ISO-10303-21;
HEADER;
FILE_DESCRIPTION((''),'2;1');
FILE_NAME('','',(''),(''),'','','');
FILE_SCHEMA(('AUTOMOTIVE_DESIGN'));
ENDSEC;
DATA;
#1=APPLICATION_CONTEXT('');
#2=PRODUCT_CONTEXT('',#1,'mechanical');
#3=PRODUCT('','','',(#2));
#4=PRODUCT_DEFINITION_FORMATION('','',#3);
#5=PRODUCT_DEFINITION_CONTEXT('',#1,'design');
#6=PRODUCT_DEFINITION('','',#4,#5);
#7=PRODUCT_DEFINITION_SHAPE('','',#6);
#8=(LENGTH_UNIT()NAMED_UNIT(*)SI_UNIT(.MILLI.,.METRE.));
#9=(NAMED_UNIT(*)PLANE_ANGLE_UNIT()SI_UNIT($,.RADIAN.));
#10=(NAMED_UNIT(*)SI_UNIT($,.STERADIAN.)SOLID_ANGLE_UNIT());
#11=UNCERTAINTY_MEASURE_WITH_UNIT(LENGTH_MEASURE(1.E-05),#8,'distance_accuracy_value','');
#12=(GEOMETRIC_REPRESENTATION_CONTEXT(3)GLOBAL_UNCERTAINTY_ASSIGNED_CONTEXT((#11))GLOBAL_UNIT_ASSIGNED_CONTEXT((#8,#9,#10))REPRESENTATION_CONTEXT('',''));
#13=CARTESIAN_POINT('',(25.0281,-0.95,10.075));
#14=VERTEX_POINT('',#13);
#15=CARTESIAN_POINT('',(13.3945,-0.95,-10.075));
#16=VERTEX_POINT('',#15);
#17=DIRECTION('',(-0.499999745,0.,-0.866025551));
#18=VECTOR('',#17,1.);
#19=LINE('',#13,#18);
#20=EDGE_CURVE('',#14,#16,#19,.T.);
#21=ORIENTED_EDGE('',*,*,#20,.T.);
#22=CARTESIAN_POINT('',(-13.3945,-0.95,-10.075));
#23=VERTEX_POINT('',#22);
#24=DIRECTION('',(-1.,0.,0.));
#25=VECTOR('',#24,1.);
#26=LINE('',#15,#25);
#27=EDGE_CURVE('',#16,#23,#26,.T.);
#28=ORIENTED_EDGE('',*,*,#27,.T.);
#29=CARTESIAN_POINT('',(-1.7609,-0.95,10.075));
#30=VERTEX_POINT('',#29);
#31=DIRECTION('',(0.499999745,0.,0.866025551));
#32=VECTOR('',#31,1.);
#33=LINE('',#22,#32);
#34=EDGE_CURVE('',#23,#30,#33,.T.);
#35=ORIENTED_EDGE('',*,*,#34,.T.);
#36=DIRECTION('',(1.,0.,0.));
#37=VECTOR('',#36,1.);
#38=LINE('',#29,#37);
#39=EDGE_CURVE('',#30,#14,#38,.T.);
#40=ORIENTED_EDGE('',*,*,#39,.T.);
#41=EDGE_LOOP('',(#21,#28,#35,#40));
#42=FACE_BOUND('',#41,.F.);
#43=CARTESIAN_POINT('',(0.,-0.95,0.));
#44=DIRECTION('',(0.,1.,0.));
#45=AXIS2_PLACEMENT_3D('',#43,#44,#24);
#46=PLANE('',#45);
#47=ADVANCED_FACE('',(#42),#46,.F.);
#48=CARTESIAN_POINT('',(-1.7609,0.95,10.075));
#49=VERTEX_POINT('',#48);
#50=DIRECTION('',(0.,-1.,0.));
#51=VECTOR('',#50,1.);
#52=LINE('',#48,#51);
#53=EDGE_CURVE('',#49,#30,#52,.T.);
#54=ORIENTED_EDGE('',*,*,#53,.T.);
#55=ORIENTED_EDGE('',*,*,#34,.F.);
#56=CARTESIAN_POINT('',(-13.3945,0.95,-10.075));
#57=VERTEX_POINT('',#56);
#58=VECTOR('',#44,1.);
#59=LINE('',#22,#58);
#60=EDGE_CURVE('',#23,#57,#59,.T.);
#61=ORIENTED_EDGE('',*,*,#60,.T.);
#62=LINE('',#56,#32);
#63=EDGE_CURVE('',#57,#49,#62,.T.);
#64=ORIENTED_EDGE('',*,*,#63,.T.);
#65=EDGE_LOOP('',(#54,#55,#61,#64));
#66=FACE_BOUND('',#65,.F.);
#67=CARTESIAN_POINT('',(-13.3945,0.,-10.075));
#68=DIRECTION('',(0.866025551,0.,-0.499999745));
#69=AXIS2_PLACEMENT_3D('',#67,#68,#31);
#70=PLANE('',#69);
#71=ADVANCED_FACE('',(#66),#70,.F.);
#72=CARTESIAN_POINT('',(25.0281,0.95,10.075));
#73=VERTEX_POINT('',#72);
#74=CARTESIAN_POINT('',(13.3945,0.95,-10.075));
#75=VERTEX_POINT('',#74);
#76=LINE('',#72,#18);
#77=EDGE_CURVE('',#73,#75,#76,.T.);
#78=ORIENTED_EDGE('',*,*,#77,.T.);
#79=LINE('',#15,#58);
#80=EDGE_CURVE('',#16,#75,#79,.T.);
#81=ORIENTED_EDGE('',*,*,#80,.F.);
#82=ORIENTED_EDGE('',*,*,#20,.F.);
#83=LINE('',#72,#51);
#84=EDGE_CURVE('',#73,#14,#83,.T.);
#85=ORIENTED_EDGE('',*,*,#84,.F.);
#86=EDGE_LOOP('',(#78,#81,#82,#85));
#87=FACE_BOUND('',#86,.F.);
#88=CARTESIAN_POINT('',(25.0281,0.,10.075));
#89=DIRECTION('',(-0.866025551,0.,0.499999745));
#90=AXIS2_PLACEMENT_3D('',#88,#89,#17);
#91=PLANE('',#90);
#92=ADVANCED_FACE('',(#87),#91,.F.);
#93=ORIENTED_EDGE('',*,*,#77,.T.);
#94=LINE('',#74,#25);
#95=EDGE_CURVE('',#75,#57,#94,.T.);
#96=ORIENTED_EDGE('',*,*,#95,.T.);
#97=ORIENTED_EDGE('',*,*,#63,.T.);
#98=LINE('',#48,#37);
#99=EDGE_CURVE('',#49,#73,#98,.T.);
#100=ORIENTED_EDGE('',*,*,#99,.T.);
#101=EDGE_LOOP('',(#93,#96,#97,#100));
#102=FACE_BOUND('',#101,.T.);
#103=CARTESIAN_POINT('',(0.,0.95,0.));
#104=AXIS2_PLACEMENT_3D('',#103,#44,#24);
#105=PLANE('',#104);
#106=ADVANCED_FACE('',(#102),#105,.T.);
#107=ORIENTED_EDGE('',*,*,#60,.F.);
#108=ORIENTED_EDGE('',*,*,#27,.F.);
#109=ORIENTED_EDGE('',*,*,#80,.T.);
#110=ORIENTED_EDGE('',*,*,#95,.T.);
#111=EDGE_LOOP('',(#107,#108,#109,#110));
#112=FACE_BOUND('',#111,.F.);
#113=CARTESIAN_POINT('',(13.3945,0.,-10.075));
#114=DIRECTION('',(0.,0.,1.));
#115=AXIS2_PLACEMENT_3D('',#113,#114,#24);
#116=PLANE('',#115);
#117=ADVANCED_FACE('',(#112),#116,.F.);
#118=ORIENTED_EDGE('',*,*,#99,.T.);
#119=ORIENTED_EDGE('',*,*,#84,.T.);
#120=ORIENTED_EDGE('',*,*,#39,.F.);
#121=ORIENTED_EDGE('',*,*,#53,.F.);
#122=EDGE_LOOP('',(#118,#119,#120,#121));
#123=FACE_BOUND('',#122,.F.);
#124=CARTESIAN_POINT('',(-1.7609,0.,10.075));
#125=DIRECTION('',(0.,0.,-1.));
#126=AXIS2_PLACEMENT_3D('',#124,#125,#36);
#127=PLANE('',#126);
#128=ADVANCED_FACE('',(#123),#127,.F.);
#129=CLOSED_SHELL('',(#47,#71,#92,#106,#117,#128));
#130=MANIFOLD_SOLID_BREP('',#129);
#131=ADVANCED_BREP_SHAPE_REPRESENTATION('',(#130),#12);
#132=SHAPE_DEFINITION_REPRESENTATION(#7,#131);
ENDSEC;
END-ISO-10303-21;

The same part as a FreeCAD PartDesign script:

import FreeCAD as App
import Part
import Sketcher
Q = App.Units.Quantity

doc = App.newDocument("Part")
body = doc.addObject("PartDesign::Body", "Body")

sketch1 = doc.addObject("Sketcher::SketchObject", "Sketch")
body.addObject(sketch1)
sketch1.AttachmentSupport = (doc.XZ_Plane, [""])
sketch1.MapMode = "FlatFace"
sketch1.addGeometry(Part.LineSegment(App.Vector(25, 10, 0), App.Vector(13, -10, 0)), False)
sketch1.addGeometry(Part.LineSegment(App.Vector(13, -10, 0), App.Vector(-13, -10, 0)), False)
sketch1.addGeometry(Part.LineSegment(App.Vector(-13, -10, 0), App.Vector(-2, 10, 0)), False)
sketch1.addGeometry(Part.LineSegment(App.Vector(-2, 10, 0), App.Vector(25, 10, 0)), False)
sketch1.addConstraint(Sketcher.Constraint("Coincident", 0, 2, 1, 1))
sketch1.addConstraint(Sketcher.Constraint("Coincident", 1, 2, 2, 1))
sketch1.addConstraint(Sketcher.Constraint("Coincident", 2, 2, 3, 1))
sketch1.addConstraint(Sketcher.Constraint("Coincident", 3, 2, 0, 1))
sketch1.addConstraint(Sketcher.Constraint("Horizontal", 1))
sketch1.addConstraint(Sketcher.Constraint("Horizontal", 3))
sketch1.addConstraint(Sketcher.Constraint("Parallel", 0, 2))
sketch1.addConstraint(Sketcher.Constraint("Angle", 0, Q("-120 deg")))
sketch1.addConstraint(Sketcher.Constraint("DistanceY", 1, 2, 2, 2, Q("20.15 mm")))
sketch1.addConstraint(Sketcher.Constraint("DistanceX", 1, 2, 1, 1, Q("26.789 mm")))
sketch1.addConstraint(Sketcher.Constraint("DistanceY", 0, 2, -1, 1, Q("10.075 mm")))
sketch1.addConstraint(Sketcher.Constraint("DistanceX", 2, 2, -1, 1, Q("1.761 mm")))
pad1 = doc.addObject("PartDesign::Pad", "Pad")
body.addObject(pad1)
pad1.Profile = sketch1
pad1.Length = 1.9
pad1.Midplane = True

doc.recompute()
